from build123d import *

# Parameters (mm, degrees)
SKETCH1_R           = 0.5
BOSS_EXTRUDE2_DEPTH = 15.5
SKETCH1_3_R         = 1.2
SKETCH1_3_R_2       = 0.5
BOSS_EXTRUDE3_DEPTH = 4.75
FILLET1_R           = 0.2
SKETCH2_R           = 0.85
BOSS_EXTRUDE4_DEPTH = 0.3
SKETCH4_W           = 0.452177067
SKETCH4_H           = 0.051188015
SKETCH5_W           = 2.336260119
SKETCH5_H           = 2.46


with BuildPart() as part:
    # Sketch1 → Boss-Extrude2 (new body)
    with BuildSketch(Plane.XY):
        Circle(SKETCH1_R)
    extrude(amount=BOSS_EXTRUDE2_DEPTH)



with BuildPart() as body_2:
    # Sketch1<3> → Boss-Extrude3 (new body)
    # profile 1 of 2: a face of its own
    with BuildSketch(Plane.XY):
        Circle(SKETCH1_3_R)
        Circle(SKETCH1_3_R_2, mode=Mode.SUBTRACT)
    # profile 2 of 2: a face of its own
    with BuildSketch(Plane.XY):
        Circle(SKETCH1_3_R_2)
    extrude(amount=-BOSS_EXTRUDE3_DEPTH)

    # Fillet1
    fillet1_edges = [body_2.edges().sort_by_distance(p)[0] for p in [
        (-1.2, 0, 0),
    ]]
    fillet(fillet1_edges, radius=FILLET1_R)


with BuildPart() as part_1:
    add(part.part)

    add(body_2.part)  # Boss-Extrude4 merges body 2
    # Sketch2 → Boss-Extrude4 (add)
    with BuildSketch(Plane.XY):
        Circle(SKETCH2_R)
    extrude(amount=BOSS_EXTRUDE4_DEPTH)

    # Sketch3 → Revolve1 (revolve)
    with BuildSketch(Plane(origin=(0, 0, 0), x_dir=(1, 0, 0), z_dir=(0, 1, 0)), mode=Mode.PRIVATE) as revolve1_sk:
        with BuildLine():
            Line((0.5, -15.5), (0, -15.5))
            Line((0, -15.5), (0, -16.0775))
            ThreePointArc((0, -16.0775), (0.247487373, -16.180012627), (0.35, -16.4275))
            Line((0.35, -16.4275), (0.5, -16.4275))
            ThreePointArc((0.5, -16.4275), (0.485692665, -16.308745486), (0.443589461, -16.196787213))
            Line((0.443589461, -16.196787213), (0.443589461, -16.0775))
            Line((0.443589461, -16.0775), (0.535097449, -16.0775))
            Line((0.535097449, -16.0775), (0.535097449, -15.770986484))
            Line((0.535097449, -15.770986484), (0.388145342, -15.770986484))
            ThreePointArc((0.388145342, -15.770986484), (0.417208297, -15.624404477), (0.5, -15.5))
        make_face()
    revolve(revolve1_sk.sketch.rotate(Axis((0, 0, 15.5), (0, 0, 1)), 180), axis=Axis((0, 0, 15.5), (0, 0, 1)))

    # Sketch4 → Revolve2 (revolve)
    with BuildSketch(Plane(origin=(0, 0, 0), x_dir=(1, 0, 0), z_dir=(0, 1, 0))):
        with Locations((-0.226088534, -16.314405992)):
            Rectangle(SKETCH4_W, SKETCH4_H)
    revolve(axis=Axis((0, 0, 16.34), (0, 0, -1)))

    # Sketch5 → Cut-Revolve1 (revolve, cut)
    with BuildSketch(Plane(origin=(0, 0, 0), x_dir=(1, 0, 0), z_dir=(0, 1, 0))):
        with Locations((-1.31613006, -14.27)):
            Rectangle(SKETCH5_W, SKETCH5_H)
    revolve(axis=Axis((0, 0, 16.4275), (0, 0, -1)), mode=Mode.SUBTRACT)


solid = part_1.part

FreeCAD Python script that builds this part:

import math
import FreeCAD as App
import Part
import Sketcher


def edges_at(feature, points):
    """Names of the edges that pass closest to the given points."""
    edges = feature.Shape.Edges
    near = lambda p: min(range(len(edges)), key=lambda i: edges[i].distToShape(Part.Vertex(*p))[0])
    return sorted({f"Edge{near(p) + 1}" for p in points})


def add_polygon(sketch, points):
    """Adds a closed chain of lines whose ends are joined by coincident constraints."""
    first, n = sketch.GeometryCount, len(points)
    for a, b in zip(points, points[1:] + points[:1]):
        sketch.addGeometry(Part.LineSegment(App.Vector(*a, 0), App.Vector(*b, 0)), False)
    for i in range(n):
        sketch.addConstraint(Sketcher.Constraint("Coincident", first + i, 2, first + (i + 1) % n, 1))

doc = App.newDocument("Part")
body = doc.addObject("PartDesign::Body", "Body")

sketch1 = doc.addObject("Sketcher::SketchObject", "Sketch")
body.addObject(sketch1)
sketch1.AttachmentSupport = (doc.XY_Plane, [""])
sketch1.MapMode = "FlatFace"
sketch1.addGeometry(Part.Circle(App.Vector(0, 0, 0), App.Vector(0, 0, 1), 0.5), False)
sketch1.addConstraint(Sketcher.Constraint("Coincident", 0, 3, -1, 1))
sketch1.addConstraint(Sketcher.Constraint("Diameter", 0, 1.0))
pad1 = doc.addObject("PartDesign::Pad", "Pad")
body.addObject(pad1)
pad1.Profile = sketch1
pad1.Length = 15.5
body2 = doc.addObject("PartDesign::Body", "Body001")

sketch2 = doc.addObject("Sketcher::SketchObject", "Sketch001")
body2.addObject(sketch2)
sketch2.AttachmentSupport = (doc.getObject("XY_Plane001"), [""])
sketch2.MapMode = "FlatFace"
sketch2.addGeometry(Part.Circle(App.Vector(0, 0, 0), App.Vector(0, 0, 1), 1.2), False)
sketch2.addConstraint(Sketcher.Constraint("Coincident", 0, 3, -1, 1))
sketch2.addConstraint(Sketcher.Constraint("Diameter", 0, 2.4))
pad2 = doc.addObject("PartDesign::Pad", "Pad001")
body2.addObject(pad2)
pad2.Profile = sketch2
pad2.Length = 4.75
pad2.Reversed = True
doc.recompute()

fillet = doc.addObject("PartDesign::Fillet", "Fillet")
body2.addObject(fillet)
fillet.Base = (pad2, edges_at(pad2, [(-1.2, 0, 0)]))
fillet.Radius = 0.2
doc.recompute()

boolean = doc.addObject("PartDesign::Boolean", "Boolean")
body.addObject(boolean)
boolean.Type = "Fuse"
boolean.addObjects([body2])

sketch3 = doc.addObject("Sketcher::SketchObject", "Sketch002")
body.addObject(sketch3)
sketch3.AttachmentSupport = (doc.XY_Plane, [""])
sketch3.MapMode = "FlatFace"
sketch3.addGeometry(Part.Circle(App.Vector(0, 0, 0), App.Vector(0, 0, 1), 0.8), False)
sketch3.addConstraint(Sketcher.Constraint("Coincident", 0, 3, -1, 1))
sketch3.addConstraint(Sketcher.Constraint("Diameter", 0, 1.7))
pad3 = doc.addObject("PartDesign::Pad", "Pad002")
body.addObject(pad3)
pad3.Profile = sketch3
pad3.Length = 0.3

sketch4 = doc.addObject("Sketcher::SketchObject", "Sketch003")
body.addObject(sketch4)
sketch4.AttachmentSupport = (doc.XZ_Plane, [""])
sketch4.MapMode = "FlatFace"
sketch4.addGeometry(Part.LineSegment(App.Vector(0.5, 15.5, 0), App.Vector(0, 15.5, 0)), False)
sketch4.addGeometry(Part.LineSegment(App.Vector(0, 15.5, 0), App.Vector(0, 16.08, 0)), False)
sketch4.addGeometry(Part.ArcOfCircle(Part.Circle(App.Vector(0, 16.43, 0), App.Vector(0, 0, 1), 0.35), math.radians(-90), math.radians(0)), False)
sketch4.addGeometry(Part.LineSegment(App.Vector(0.35, 16.43, 0), App.Vector(0.5, 16.43, 0)), False)
sketch4.addGeometry(Part.ArcOfCircle(Part.Circle(App.Vector(0, 16.43, 0), App.Vector(0, 0, 1), 0.5), math.radians(-27), math.radians(0)), False)
sketch4.addGeometry(Part.LineSegment(App.Vector(0.44, 16.2, 0), App.Vector(0.44, 16.08, 0)), False)
sketch4.addGeometry(Part.LineSegment(App.Vector(0.44, 16.08, 0), App.Vector(0.54, 16.08, 0)), False)
sketch4.addGeometry(Part.LineSegment(App.Vector(0.54, 16.08, 0), App.Vector(0.54, 15.77, 0)), False)
sketch4.addGeometry(Part.LineSegment(App.Vector(0.54, 15.77, 0), App.Vector(0.39, 15.77, 0)), False)
sketch4.addGeometry(Part.ArcOfCircle(Part.Circle(App.Vector(0.77, 15.77, 0), App.Vector(0, 0, 1), 0.38), math.radians(-180), math.radians(-135)), False)
sketch4.addConstraint(Sketcher.Constraint("Coincident", 0, 2, 1, 1))
sketch4.addConstraint(Sketcher.Constraint("Coincident", 1, 2, 2, 1))
sketch4.addConstraint(Sketcher.Constraint("Coincident", 2, 2, 3, 1))
sketch4.addConstraint(Sketcher.Constraint("Coincident", 3, 2, 4, 2))
sketch4.addConstraint(Sketcher.Constraint("Coincident", 4, 1, 5, 1))
sketch4.addConstraint(Sketcher.Constraint("Coincident", 5, 2, 6, 1))
sketch4.addConstraint(Sketcher.Constraint("Coincident", 6, 2, 7, 1))
sketch4.addConstraint(Sketcher.Constraint("Coincident", 7, 2, 8, 1))
sketch4.addConstraint(Sketcher.Constraint("Coincident", 8, 2, 9, 1))
sketch4.addConstraint(Sketcher.Constraint("Coincident", 9, 2, 0, 1))
sketch4.addConstraint(Sketcher.Constraint("Horizontal", 0))
sketch4.addConstraint(Sketcher.Constraint("Vertical", 1))
sketch4.addConstraint(Sketcher.Constraint("Horizontal", 3))
sketch4.addConstraint(Sketcher.Constraint("Vertical", 5))
sketch4.addConstraint(Sketcher.Constraint("Horizontal", 6))
sketch4.addConstraint(Sketcher.Constraint("Vertical", 7))
sketch4.addConstraint(Sketcher.Constraint("Horizontal", 8))
sketch4.addConstraint(Sketcher.Constraint("Coincident", 4, 3, 2, 3))
sketch4.addConstraint(Sketcher.Constraint("PointOnObject", 2, 3, -2))
sketch4.addConstraint(Sketcher.Constraint("PointOnObject", 0, 2, -2))
sketch4.addConstraint(Sketcher.Constraint("Horizontal", 4, 3, 2, 2))
sketch4.addConstraint(Sketcher.Constraint("Horizontal", 1, 2, 5, 2))
sketch4.addConstraint(Sketcher.Constraint("Horizontal", 9, 3, 7, 2))
sketch4.addConstraint(Sketcher.Constraint("Vertical", 3, 2, 9, 2))
sketch4.addConstraint(Sketcher.Constraint("Radius", 4, 0.5))
sketch4.addConstraint(Sketcher.Constraint("Radius", 2, 0.35))
sketch4.addConstraint(Sketcher.Constraint("DistanceY", -1, 1, 0, 2, 15.5))
sketch4.addConstraint(Sketcher.Constraint("DistanceY", 1, 1, 1, 2, 0.5775))
sketch4.addConstraint(Sketcher.Constraint("Radius", 9, 0.384182))
sketch4.addConstraint(Sketcher.Constraint("DistanceY", 7, 2, 4, 1, 0.425801))
sketch4.addConstraint(Sketcher.Constraint("DistanceX", 6, 1, 6, 2, 0.091508))
sketch4.addConstraint(Sketcher.Constraint("DistanceX", 8, 2, 8, 1, 0.146952))
revolution = doc.addObject("PartDesign::Revolution", "Revolution")
body.addObject(revolution)
revolution.Profile = sketch4
revolution.ReferenceAxis = (sketch4, ["V_Axis"])
revolution.Angle = 360

sketch5 = doc.addObject("Sketcher::SketchObject", "Sketch004")
body.addObject(sketch5)
sketch5.AttachmentSupport = (doc.XZ_Plane, [""])
sketch5.MapMode = "FlatFace"
add_polygon(sketch5, [(-0.45, 16.29), (-0.45, 16.34), (0, 16.34), (0, 16.29)])
sketch5.addConstraint(Sketcher.Constraint("Vertical", 0))
sketch5.addConstraint(Sketcher.Constraint("Horizontal", 1))
sketch5.addConstraint(Sketcher.Constraint("Vertical", 2))
sketch5.addConstraint(Sketcher.Constraint("Horizontal", 3))
sketch5.addConstraint(Sketcher.Constraint("PointOnObject", 1, 2, -2))
sketch5.addConstraint(Sketcher.Constraint("DistanceY", -1, 1, 0, 2, 16.34))
sketch5.addConstraint(Sketcher.Constraint("DistanceY", 0, 1, 0, 2, 0.051188))
sketch5.addConstraint(Sketcher.Constraint("DistanceX", 1, 1, 1, 2, 0.452177))
revolution2 = doc.addObject("PartDesign::Revolution", "Revolution001")
body.addObject(revolution2)
revolution2.Profile = sketch5
revolution2.ReferenceAxis = (sketch5, ["V_Axis"])
revolution2.Angle = 360

sketch6 = doc.addObject("Sketcher::SketchObject", "Sketch005")
body.addObject(sketch6)
sketch6.AttachmentSupport = (doc.XZ_Plane, [""])
sketch6.MapMode = "FlatFace"
add_polygon(sketch6, [(-2.5, 13), (-2.5, 15.5), (-0.1, 15.5), (-0.1, 13)])
sketch6.addConstraint(Sketcher.Constraint("Vertical", 0))
sketch6.addConstraint(Sketcher.Constraint("Horizontal", 1))
sketch6.addConstraint(Sketcher.Constraint("Vertical", 2))
sketch6.addConstraint(Sketcher.Constraint("Horizontal", 3))
sketch6.addConstraint(Sketcher.Constraint("DistanceY", 0, 1, 0, 2, 2.46))
sketch6.addConstraint(Sketcher.Constraint("DistanceY", -1, 1, 0, 2, 15.5))
sketch6.addConstraint(Sketcher.Constraint("DistanceX", 1, 2, -1, 1, 0.148))
sketch6.addConstraint(Sketcher.Constraint("DistanceX", 1, 1, 1, 2, 2.33626))
groove = doc.addObject("PartDesign::Groove", "Groove")
body.addObject(groove)
groove.Profile = sketch6
groove.ReferenceAxis = (sketch6, ["V_Axis"])
groove.Angle = 360

doc.recompute()
